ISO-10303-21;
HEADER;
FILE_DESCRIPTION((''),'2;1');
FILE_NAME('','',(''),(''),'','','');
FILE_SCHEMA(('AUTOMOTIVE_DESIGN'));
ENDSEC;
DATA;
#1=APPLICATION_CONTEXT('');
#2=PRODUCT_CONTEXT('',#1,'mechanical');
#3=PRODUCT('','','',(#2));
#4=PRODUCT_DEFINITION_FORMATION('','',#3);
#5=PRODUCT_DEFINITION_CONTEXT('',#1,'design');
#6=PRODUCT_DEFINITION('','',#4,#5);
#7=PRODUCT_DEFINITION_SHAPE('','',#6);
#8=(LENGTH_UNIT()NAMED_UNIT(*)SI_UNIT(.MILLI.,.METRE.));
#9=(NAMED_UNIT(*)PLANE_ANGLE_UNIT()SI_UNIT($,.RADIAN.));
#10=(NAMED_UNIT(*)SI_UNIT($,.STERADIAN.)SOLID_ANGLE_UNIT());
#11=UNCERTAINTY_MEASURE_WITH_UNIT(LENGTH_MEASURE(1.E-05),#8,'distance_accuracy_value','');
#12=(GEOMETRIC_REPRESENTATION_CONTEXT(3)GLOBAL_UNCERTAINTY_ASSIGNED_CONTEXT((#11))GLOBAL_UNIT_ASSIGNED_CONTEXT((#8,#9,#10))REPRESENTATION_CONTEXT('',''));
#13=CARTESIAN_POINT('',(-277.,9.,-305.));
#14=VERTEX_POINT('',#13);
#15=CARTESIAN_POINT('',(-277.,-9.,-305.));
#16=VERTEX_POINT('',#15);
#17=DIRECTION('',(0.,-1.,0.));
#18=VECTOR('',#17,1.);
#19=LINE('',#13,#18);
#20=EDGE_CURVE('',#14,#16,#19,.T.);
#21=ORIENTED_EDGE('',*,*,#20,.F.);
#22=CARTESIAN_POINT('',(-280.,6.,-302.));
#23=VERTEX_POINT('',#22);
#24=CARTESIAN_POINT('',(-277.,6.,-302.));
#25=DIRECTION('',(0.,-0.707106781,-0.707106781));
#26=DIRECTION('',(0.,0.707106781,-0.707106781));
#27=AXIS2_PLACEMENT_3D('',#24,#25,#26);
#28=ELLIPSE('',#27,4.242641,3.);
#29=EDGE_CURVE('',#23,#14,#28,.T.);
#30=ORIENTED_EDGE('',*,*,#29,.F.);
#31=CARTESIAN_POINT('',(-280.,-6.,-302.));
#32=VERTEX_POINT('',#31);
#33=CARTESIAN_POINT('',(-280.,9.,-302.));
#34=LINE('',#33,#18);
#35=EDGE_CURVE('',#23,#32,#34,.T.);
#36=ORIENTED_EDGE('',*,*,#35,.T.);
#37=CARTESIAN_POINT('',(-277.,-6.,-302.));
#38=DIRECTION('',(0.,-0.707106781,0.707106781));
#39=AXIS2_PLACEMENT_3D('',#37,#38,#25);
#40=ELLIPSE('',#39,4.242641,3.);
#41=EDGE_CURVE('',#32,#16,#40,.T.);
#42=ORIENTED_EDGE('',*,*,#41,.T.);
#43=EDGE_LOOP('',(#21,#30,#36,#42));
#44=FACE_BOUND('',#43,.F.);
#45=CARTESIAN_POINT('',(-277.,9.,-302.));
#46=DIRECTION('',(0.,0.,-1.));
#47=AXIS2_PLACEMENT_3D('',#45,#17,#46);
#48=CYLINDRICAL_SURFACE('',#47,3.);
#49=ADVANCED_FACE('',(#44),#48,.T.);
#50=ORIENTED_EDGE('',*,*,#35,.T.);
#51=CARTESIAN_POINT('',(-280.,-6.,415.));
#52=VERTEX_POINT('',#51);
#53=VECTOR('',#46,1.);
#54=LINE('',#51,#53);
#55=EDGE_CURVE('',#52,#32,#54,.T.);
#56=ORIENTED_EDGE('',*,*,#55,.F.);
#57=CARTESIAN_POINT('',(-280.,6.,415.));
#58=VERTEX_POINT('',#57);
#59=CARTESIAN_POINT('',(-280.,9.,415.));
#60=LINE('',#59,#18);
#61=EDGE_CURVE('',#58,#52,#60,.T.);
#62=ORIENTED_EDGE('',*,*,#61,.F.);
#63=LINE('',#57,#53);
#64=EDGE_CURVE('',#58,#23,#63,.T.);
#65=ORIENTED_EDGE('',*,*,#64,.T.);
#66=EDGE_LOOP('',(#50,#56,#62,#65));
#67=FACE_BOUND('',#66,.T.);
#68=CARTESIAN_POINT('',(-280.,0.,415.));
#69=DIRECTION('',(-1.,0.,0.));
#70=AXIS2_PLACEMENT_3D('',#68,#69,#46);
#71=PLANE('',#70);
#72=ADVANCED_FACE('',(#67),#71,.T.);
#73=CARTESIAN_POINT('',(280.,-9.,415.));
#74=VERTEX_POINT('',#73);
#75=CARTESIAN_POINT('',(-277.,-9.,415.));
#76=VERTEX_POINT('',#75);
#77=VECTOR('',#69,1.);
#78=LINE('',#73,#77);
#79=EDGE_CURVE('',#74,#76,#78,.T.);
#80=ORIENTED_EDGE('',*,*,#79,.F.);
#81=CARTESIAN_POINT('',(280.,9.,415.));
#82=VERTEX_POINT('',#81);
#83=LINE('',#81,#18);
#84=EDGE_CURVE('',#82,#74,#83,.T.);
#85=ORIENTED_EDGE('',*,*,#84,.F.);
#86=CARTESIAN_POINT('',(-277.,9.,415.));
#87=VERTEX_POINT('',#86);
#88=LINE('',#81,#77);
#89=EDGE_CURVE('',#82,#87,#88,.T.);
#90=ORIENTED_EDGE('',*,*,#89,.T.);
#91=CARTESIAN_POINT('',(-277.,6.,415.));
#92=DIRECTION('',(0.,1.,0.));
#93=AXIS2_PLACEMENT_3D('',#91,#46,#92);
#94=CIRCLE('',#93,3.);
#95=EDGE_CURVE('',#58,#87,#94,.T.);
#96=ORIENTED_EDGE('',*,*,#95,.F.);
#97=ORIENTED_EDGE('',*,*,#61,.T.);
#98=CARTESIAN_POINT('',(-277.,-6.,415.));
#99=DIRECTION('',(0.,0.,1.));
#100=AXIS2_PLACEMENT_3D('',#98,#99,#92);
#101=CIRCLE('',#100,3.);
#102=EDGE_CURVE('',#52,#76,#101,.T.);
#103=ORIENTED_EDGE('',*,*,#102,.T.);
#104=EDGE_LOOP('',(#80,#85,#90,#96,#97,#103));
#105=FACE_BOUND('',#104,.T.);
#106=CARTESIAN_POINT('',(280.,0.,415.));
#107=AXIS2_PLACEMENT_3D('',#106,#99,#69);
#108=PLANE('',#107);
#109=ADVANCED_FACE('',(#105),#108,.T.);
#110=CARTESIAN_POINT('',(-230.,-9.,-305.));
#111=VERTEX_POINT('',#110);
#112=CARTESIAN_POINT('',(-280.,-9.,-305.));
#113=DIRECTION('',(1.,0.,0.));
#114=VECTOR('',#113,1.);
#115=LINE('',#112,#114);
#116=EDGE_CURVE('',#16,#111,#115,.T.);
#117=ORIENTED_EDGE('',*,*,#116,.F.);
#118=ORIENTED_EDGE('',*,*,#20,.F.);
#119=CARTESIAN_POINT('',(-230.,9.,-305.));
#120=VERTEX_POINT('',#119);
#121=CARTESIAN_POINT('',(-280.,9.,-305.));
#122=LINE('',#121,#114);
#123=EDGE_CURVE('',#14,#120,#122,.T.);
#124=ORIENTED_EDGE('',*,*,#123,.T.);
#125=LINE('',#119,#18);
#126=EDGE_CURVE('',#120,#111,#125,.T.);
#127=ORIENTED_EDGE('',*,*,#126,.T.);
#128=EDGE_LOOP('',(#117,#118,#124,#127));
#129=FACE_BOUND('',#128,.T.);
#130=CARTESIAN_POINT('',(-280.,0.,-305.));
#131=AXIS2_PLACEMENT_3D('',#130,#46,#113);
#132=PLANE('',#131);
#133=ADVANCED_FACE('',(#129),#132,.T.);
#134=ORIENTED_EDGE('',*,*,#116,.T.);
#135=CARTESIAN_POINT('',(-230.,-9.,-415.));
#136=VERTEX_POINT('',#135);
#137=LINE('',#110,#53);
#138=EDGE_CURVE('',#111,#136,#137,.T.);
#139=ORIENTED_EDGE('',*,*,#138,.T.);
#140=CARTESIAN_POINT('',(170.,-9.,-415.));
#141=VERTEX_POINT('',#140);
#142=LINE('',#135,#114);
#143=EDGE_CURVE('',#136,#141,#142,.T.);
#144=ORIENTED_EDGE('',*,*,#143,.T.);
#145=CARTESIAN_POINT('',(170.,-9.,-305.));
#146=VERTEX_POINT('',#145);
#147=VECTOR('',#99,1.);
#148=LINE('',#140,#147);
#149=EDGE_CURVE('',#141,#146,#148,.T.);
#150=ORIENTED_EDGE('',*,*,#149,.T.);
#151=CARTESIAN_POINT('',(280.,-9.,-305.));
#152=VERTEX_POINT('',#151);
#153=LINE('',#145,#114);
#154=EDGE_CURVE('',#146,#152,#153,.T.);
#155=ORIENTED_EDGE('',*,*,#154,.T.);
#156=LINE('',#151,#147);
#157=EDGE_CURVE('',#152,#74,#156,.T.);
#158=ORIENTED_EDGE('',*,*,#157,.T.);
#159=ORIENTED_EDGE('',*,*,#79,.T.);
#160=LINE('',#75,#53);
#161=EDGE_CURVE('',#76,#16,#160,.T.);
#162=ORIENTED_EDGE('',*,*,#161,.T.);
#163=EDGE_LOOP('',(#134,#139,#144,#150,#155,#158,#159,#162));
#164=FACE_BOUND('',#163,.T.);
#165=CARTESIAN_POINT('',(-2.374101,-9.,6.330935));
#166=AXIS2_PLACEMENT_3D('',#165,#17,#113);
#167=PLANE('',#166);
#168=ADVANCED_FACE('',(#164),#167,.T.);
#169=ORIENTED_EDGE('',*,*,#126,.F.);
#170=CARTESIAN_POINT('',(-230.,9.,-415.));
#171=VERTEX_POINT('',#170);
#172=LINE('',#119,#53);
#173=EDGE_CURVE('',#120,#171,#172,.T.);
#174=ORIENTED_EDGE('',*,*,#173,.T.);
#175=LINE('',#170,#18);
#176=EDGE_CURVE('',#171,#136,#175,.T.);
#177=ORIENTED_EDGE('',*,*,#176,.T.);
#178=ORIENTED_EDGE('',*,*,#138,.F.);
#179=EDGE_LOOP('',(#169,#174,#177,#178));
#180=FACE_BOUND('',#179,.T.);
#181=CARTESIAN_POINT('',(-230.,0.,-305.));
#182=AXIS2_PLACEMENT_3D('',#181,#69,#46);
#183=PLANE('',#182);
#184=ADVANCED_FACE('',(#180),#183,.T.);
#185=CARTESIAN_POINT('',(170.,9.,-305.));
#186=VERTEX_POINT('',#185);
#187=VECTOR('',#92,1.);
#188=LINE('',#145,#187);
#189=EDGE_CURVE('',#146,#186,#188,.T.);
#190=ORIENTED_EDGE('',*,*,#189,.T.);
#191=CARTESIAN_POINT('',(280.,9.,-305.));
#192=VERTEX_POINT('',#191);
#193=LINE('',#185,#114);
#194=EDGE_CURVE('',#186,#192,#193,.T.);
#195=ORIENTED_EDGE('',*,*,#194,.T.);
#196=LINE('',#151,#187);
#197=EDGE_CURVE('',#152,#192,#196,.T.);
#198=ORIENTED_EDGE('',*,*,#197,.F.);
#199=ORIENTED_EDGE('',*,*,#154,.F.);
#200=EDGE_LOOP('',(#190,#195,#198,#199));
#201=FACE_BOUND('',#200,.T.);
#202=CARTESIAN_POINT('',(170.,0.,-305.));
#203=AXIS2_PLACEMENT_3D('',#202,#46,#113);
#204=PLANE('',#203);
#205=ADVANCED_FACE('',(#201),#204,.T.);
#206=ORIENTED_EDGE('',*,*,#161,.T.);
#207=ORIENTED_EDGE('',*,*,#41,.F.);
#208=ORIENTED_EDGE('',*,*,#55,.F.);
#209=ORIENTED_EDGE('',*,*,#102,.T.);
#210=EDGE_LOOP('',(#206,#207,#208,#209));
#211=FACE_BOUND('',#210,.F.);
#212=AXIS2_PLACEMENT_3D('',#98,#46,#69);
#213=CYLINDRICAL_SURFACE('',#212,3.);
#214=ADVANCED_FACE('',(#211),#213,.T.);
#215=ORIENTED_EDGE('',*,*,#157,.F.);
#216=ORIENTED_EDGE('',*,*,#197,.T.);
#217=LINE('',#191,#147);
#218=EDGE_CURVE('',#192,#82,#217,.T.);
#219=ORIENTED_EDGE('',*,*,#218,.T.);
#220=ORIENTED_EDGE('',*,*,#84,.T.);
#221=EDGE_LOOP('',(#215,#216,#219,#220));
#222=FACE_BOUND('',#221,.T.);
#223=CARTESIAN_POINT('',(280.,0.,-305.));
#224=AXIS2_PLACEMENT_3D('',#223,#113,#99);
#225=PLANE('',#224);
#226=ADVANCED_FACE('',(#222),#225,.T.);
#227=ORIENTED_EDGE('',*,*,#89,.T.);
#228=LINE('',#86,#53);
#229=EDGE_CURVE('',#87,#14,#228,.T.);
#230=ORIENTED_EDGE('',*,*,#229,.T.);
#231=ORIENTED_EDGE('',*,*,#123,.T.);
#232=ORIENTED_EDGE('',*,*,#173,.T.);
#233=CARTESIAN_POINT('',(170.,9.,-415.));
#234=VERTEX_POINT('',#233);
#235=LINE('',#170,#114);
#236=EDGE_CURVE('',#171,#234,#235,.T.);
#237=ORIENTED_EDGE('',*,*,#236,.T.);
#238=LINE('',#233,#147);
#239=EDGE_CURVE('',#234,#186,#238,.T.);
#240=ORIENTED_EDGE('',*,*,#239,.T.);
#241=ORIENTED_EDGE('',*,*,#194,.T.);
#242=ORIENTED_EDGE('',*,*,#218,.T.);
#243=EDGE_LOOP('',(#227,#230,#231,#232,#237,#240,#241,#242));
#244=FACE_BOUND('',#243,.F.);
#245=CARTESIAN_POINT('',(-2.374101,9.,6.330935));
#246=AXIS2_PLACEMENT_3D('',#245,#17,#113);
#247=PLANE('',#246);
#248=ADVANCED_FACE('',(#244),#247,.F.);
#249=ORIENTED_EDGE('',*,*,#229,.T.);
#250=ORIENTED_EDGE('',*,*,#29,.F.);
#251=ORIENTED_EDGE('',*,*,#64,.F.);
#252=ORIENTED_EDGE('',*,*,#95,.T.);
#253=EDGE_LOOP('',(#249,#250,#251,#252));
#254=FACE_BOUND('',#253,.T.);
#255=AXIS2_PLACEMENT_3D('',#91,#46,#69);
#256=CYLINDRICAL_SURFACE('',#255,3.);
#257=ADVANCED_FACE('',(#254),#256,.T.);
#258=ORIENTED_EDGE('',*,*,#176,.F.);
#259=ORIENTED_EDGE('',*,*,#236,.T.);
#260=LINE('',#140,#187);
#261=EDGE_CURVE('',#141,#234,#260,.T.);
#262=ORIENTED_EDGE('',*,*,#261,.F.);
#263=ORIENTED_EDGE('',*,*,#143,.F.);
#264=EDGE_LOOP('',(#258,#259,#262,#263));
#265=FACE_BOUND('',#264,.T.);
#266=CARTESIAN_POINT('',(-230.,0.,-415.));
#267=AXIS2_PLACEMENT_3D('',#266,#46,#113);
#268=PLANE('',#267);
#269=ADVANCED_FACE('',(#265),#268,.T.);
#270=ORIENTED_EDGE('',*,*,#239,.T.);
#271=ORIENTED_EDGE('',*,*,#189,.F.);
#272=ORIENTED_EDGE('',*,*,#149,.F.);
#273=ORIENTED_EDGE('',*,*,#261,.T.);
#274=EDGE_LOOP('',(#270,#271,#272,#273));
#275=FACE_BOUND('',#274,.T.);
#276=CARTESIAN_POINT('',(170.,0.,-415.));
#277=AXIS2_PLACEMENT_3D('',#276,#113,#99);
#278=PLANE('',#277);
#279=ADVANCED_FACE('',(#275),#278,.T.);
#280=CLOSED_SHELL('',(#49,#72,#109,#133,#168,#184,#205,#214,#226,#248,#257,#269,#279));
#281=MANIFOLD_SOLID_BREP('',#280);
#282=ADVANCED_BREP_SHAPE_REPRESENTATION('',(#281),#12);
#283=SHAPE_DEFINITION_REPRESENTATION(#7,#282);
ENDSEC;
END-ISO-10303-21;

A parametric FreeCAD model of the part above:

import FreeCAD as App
import Part
import Sketcher

V = App.Vector


def edges_at(feature, points):
    """Names of the edges that pass closest to the given points."""
    edges = feature.Shape.Edges
    near = lambda p: min(range(len(edges)), key=lambda i: edges[i].distToShape(Part.Vertex(*p))[0])
    return sorted({f"Edge{near(p) + 1}" for p in points})


def add_polygon(sketch, points):
    """Adds a closed chain of lines whose ends are joined by coincident constraints."""
    first, n = sketch.GeometryCount, len(points)
    for a, b in zip(points, points[1:] + points[:1]):
        sketch.addGeometry(Part.LineSegment(App.Vector(*a, 0), App.Vector(*b, 0)), False)
    for i in range(n):
        sketch.addConstraint(Sketcher.Constraint("Coincident", first + i, 2, first + (i + 1) % n, 1))

doc = App.newDocument("Part")
params = doc.addObject("Spreadsheet::Sheet", "Params")
for row, (alias, value) in enumerate([
    ("sketch1_width", "560 mm"),
    ("sketch1_width2", "50 mm"),
    ("sketch1_width3", "400 mm"),
    ("sketch1_height", "720 mm"),
    ("pad1_length", "18 mm"),
    ("fillet_radius", "3 mm"),
], start=1):
    params.set(f"A{row}", alias)
    params.set(f"B{row}", "=" + value)
    params.setAlias(f"B{row}", alias)

body = doc.addObject("PartDesign::Body", "Body")

sketch1 = body.newObject("Sketcher::SketchObject", "Sketch")
sketch1.AttachmentSupport = (doc.getObject("XZ_Plane"), [""])
sketch1.MapMode = "FlatFace"
add_polygon(sketch1, [(280, -305), (280, 415), (-280, 415), (-280, -305), (-230, -305), (-230, -415), (170, -415), (170, -305)])
sketch1.addConstraint([
    Sketcher.Constraint("Vertical", 0),
    Sketcher.Constraint("Horizontal", 1),
    Sketcher.Constraint("Vertical", 2),
    Sketcher.Constraint("Horizontal", 3),
    Sketcher.Constraint("Vertical", 4),
    Sketcher.Constraint("Horizontal", 5),
    Sketcher.Constraint("Vertical", 6),
    Sketcher.Constraint("Horizontal", 7),
    Sketcher.Constraint("Symmetric", 2, 2, 7, 2, -2),
    Sketcher.Constraint("Equal", 7, 4),
    Sketcher.Constraint("DistanceX", 1, 2, 1, 1, 560.0),
    Sketcher.Constraint("DistanceX", 3, 1, 3, 2, 50.0),
    Sketcher.Constraint("DistanceX", 5, 1, 5, 2, 400.0),
    Sketcher.Constraint("DistanceY", 0, 1, 0, 2, 720.0),
    Sketcher.Constraint("DistanceY", -1, 1, 0, 2, 415.0),
])
sketch1.setExpression("Constraints[18]", "Params.sketch1_width")
sketch1.setExpression("Constraints[19]", "Params.sketch1_width2")
sketch1.setExpression("Constraints[20]", "Params.sketch1_width3")
sketch1.setExpression("Constraints[21]", "Params.sketch1_height")
pad1 = body.newObject("PartDesign::Pad", "Pad")
pad1.Profile = sketch1
pad1.setExpression("Length", "Params.pad1_length")
pad1.Midplane = True
doc.recompute()

fillet = body.newObject("PartDesign::Fillet", "Fillet")
fillet.Base = (pad1, edges_at(pad1, [(-280, -9, 55), (-280, 9, 55), (-280, 0, -305)]))
fillet.setExpression("Radius", "Params.fillet_radius")

doc.recompute()
